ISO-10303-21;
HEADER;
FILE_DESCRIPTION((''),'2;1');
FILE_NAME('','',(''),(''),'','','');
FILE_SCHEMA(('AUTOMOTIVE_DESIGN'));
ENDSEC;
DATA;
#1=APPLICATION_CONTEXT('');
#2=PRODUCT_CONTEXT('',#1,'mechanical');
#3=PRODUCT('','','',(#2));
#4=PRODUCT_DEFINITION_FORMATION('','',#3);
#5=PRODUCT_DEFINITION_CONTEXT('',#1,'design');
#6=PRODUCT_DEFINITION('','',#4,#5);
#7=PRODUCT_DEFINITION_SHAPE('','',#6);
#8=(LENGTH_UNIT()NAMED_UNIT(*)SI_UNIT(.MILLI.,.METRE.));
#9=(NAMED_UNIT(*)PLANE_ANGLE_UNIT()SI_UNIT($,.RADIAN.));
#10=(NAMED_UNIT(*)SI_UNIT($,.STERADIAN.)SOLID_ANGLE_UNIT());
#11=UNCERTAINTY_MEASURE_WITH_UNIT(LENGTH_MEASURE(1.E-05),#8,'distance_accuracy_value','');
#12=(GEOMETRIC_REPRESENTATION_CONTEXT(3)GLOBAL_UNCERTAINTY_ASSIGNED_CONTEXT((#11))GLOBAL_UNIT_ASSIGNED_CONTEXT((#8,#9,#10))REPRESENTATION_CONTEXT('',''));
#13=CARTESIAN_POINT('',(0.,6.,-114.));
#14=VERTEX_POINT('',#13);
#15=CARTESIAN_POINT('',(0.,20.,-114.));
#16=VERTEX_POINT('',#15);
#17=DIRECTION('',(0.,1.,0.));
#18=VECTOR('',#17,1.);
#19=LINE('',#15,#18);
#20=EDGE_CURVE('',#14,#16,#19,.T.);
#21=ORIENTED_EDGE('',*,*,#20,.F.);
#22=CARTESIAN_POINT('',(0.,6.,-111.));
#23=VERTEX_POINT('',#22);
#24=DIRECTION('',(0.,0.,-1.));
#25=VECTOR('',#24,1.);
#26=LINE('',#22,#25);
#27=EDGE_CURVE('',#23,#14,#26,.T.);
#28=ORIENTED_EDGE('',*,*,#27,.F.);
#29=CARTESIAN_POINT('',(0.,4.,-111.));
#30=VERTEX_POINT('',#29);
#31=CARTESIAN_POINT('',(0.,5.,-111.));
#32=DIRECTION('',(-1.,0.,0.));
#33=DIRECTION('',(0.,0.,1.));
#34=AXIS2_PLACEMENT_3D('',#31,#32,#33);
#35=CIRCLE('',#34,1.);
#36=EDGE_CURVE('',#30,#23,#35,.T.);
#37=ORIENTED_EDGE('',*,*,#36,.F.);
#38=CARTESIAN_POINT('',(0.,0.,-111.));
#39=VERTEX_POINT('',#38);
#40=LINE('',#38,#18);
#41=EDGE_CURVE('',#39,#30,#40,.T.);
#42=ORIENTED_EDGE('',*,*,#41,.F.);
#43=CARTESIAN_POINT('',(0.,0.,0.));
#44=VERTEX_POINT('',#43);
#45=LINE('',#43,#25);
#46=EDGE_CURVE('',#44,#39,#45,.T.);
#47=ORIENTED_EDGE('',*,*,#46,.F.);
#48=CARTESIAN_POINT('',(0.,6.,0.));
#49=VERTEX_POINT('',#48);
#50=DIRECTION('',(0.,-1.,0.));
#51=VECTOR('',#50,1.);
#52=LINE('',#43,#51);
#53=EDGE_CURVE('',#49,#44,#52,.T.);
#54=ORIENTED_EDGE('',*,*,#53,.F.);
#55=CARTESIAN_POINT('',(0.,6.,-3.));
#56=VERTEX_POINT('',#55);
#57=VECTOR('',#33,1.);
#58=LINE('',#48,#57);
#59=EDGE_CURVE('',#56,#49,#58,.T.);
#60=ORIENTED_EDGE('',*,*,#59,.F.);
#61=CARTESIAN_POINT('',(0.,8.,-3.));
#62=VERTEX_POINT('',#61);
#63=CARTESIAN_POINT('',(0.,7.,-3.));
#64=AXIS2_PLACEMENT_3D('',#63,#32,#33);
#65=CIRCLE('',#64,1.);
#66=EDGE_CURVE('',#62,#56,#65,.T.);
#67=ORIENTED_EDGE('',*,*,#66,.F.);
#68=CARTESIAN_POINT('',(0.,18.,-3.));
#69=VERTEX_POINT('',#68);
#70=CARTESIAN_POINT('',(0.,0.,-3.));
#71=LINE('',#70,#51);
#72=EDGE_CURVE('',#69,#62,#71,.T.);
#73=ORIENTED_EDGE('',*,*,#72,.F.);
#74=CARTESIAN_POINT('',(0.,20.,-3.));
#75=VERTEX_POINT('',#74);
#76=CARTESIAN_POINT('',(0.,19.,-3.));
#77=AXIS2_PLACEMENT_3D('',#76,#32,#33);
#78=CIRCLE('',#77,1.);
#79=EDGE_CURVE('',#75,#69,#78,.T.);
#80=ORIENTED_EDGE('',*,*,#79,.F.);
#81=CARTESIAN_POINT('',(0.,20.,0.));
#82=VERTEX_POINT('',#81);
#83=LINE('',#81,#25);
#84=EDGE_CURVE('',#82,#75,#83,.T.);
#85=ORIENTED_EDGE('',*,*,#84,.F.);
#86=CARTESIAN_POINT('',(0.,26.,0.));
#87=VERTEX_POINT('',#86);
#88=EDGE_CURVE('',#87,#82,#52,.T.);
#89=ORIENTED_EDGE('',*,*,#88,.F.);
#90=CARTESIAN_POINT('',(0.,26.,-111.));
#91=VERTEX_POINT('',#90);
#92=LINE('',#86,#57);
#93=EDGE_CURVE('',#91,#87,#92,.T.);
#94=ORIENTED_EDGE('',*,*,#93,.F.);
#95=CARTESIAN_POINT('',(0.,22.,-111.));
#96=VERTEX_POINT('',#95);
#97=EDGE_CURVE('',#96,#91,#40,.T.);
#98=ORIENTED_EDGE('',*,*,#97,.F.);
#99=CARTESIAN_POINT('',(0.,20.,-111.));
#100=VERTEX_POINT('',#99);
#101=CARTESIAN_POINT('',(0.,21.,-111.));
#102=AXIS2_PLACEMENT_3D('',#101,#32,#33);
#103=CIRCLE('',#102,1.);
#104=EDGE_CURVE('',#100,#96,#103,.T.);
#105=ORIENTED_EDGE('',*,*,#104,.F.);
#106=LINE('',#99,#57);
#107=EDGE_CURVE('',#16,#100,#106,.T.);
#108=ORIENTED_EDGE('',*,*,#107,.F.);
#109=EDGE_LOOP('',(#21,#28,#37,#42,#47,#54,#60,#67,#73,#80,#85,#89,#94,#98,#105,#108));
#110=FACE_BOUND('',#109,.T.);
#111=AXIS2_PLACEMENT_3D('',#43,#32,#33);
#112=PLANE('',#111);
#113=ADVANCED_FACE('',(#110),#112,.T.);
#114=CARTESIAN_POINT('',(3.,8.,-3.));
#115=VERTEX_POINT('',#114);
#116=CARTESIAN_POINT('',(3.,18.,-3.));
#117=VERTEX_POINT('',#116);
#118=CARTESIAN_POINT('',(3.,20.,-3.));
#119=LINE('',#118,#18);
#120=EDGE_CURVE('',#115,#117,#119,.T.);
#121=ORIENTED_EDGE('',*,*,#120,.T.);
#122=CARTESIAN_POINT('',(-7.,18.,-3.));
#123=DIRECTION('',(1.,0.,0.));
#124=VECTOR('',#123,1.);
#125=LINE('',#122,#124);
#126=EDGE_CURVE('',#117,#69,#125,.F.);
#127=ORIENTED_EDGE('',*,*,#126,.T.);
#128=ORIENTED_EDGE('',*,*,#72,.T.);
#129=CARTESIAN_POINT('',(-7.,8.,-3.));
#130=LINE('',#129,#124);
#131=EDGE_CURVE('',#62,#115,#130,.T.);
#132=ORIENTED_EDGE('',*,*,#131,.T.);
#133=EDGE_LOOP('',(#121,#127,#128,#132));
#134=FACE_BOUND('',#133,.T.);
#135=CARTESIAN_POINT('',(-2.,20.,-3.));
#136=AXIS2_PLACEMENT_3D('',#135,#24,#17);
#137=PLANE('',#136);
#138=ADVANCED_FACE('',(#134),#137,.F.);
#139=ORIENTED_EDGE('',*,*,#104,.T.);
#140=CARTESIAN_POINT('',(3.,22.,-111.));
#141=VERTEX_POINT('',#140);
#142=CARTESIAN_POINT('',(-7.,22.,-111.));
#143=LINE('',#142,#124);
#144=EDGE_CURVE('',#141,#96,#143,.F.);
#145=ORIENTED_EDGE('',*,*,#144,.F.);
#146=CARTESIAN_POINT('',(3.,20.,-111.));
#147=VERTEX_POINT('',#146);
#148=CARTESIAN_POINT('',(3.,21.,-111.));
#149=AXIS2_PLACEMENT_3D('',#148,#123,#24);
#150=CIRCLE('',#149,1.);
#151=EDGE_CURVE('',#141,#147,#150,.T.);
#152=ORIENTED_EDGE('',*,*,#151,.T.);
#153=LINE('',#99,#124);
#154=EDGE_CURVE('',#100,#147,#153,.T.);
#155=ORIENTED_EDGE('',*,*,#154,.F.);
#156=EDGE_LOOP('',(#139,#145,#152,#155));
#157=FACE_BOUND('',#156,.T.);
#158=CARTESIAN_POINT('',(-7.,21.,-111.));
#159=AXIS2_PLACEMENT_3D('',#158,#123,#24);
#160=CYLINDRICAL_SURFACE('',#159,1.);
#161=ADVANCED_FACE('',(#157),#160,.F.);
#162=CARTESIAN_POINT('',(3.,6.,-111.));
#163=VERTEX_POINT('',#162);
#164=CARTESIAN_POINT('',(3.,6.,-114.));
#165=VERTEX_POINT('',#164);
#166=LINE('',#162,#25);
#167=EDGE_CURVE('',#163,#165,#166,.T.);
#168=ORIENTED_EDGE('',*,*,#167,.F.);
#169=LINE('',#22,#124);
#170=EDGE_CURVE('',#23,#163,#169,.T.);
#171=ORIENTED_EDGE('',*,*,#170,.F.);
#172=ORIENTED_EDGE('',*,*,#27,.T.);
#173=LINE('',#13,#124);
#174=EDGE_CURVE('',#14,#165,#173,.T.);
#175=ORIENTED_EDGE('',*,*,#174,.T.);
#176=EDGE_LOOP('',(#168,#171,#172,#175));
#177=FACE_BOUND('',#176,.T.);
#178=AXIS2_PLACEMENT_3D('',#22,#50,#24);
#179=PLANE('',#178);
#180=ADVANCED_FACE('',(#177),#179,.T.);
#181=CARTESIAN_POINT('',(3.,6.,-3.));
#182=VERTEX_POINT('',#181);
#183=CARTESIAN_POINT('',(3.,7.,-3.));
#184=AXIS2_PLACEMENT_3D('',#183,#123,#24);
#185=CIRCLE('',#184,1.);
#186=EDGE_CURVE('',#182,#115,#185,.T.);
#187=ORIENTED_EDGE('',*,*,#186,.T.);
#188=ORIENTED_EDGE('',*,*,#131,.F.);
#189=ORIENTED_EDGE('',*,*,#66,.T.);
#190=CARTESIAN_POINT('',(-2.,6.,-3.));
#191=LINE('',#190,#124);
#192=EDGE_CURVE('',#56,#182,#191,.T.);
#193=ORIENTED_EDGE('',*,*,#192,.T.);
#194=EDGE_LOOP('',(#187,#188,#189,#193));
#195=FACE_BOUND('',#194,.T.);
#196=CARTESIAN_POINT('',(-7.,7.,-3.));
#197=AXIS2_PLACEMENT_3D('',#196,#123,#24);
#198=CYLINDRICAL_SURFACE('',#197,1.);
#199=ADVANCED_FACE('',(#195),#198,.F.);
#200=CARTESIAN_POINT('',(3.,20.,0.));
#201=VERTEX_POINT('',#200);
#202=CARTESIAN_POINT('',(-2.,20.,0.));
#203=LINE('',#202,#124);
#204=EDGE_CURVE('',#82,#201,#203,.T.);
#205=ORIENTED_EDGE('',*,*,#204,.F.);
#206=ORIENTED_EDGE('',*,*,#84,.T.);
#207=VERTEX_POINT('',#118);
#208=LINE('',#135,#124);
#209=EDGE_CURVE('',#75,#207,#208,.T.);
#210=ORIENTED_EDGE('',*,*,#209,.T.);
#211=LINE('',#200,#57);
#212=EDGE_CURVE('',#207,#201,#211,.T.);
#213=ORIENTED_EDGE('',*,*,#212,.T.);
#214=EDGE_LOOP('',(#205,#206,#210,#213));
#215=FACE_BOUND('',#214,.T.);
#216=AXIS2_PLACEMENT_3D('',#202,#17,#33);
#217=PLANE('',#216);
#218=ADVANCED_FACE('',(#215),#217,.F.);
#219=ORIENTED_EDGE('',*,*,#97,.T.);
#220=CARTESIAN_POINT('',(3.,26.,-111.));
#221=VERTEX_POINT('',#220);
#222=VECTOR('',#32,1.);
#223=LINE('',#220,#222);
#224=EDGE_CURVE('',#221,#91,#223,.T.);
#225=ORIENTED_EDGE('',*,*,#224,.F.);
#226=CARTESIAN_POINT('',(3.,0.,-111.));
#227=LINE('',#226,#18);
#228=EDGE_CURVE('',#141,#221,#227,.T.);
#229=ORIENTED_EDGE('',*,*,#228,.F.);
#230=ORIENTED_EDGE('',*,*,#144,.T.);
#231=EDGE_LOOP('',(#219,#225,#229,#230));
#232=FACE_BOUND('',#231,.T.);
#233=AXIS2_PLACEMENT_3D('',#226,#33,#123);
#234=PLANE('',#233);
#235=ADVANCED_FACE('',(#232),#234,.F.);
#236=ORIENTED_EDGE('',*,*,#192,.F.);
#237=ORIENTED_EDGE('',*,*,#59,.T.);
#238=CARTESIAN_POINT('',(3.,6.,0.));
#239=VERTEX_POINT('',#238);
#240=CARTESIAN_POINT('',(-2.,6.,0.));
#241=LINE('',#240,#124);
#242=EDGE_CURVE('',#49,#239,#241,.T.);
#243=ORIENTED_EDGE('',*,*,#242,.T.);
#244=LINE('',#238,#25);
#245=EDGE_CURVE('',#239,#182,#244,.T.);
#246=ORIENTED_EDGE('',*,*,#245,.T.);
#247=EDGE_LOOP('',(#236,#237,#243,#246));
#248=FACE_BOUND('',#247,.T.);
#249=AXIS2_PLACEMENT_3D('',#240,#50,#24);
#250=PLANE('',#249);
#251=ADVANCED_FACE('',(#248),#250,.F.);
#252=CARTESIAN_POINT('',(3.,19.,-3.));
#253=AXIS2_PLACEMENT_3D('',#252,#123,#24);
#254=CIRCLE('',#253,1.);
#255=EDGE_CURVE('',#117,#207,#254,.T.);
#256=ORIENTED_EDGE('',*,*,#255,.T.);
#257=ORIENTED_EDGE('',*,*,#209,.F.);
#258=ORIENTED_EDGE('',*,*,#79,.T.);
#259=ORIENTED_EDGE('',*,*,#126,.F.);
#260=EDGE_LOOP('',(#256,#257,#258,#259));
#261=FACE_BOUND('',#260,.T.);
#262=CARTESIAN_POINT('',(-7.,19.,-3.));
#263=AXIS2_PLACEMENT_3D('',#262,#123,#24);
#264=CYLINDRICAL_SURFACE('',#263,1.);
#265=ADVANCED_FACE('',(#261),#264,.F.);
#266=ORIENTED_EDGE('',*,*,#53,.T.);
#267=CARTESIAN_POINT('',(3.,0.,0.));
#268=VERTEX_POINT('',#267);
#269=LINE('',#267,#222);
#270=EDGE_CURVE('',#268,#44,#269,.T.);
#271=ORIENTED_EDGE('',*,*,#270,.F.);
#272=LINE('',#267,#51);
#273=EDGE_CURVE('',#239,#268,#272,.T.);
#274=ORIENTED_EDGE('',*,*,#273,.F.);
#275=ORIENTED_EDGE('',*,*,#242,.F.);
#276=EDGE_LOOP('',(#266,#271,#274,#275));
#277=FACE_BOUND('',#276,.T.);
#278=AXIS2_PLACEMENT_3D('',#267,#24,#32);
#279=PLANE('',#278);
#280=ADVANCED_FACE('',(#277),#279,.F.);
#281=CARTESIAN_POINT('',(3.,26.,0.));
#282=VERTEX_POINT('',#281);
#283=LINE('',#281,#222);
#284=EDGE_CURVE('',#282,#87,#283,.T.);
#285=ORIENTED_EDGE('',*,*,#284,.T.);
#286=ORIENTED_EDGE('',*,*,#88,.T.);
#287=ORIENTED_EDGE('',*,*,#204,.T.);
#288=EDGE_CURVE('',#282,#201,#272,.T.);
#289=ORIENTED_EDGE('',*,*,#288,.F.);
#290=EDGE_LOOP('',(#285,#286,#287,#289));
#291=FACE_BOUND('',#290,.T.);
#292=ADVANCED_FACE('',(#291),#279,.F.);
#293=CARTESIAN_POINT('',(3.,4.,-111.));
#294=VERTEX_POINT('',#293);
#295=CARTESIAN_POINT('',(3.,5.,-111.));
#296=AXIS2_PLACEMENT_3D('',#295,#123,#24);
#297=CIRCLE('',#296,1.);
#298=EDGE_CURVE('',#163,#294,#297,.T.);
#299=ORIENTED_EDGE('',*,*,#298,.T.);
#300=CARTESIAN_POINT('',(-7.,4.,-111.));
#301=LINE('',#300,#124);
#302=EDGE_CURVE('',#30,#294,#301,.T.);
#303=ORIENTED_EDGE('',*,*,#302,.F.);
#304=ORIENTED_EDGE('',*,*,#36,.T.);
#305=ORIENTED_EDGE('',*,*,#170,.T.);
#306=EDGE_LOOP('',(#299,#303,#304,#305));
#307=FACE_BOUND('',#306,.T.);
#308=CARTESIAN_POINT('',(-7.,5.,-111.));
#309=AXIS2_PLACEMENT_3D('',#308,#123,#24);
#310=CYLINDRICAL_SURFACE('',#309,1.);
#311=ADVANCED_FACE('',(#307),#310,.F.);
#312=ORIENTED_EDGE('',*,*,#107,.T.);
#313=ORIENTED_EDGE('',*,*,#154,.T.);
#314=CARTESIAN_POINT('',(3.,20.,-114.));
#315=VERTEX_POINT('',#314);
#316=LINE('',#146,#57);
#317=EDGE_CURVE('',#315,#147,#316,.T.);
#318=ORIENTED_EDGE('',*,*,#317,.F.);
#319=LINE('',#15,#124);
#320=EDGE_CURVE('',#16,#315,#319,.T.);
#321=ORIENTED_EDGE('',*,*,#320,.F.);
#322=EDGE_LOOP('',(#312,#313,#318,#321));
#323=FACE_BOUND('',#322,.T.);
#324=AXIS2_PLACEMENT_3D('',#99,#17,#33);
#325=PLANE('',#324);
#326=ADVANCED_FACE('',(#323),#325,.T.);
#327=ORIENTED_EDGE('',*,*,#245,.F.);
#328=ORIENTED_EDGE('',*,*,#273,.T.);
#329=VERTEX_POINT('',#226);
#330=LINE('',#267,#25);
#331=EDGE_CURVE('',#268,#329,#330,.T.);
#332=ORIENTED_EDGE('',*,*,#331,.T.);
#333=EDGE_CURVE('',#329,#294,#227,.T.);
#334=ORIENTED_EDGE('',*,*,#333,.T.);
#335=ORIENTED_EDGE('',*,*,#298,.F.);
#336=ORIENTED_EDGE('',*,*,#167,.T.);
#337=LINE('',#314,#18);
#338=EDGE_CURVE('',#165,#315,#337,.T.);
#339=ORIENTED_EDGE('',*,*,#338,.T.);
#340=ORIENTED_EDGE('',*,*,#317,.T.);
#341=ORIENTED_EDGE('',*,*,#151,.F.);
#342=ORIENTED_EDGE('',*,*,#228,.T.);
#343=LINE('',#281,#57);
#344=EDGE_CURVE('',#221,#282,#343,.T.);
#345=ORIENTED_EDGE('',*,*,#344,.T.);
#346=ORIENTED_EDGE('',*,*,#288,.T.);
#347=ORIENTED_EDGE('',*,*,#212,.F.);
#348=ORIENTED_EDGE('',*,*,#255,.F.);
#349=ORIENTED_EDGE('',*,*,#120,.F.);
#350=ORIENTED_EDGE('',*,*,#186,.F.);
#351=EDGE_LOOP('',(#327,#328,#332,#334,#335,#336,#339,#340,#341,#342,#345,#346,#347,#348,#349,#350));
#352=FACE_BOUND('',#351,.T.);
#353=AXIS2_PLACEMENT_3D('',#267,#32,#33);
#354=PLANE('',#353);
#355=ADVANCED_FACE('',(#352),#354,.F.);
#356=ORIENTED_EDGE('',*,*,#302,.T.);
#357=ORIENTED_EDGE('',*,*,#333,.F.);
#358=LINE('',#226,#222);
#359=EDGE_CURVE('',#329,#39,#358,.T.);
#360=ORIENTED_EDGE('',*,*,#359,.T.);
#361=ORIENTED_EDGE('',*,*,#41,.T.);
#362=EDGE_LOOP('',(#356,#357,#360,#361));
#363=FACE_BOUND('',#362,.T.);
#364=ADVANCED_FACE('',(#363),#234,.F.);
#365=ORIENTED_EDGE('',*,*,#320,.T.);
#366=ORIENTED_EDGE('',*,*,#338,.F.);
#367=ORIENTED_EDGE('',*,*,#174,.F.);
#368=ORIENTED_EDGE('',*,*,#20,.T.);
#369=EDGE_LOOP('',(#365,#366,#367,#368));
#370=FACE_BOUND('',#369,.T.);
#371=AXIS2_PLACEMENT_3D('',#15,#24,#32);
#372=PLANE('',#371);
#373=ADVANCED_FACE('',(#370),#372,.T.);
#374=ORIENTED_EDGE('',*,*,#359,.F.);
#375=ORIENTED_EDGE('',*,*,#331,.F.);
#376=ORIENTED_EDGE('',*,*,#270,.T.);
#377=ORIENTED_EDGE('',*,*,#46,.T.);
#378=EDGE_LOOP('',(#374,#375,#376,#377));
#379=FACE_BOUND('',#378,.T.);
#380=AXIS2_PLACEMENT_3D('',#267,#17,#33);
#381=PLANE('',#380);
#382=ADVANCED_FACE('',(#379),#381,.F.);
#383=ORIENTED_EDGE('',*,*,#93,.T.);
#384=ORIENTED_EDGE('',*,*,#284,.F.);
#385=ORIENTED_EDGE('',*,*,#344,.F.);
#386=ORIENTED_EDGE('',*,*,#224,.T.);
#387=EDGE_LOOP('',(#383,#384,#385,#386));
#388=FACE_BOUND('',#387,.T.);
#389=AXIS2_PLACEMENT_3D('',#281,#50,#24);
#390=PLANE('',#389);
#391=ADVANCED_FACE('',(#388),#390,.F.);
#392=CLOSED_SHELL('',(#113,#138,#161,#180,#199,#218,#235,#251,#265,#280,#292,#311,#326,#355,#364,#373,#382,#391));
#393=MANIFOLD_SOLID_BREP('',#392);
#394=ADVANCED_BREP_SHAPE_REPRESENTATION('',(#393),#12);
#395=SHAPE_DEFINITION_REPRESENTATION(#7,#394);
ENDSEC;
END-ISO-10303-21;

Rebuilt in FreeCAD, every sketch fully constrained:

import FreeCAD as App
import Part
import Sketcher
Q = App.Units.Quantity

doc = App.newDocument("Part")
body = doc.addObject("PartDesign::Body", "Body")

sketch1 = doc.addObject("Sketcher::SketchObject", "Sketch")
body.addObject(sketch1)
sketch1.AttachmentSupport = (doc.YZ_Plane, [""])
sketch1.MapMode = "FlatFace"
sketch1.addGeometry([
    Part.LineSegment(App.Vector(26, 0, 0), App.Vector(0, 0, 0)),
    Part.LineSegment(App.Vector(0, 0, 0), App.Vector(0, -111, 0)),
    Part.LineSegment(App.Vector(0, -111, 0), App.Vector(26, -111, 0)),
    Part.LineSegment(App.Vector(26, -111, 0), App.Vector(26, 0, 0)),
], False)
sketch1.addConstraint([
    Sketcher.Constraint("Coincident", 0, 2, 1, 1),
    Sketcher.Constraint("Coincident", 1, 2, 2, 1),
    Sketcher.Constraint("Coincident", 2, 2, 3, 1),
    Sketcher.Constraint("Coincident", 3, 2, 0, 1),
    Sketcher.Constraint("Horizontal", 0),
    Sketcher.Constraint("Vertical", 1),
    Sketcher.Constraint("Horizontal", 2),
    Sketcher.Constraint("Vertical", 3),
    Sketcher.Constraint("Coincident", 0, 2, -1, 1),
    Sketcher.Constraint("DistanceX", 0, 2, 0, 1, Q("26 mm")),
    Sketcher.Constraint("DistanceY", 1, 2, 1, 1, Q("111 mm")),
])
pad1 = doc.addObject("PartDesign::Pad", "Pad")
body.addObject(pad1)
pad1.Profile = sketch1
pad1.Length = 3

sketch2 = doc.addObject("Sketcher::SketchObject", "Sketch001")
body.addObject(sketch2)
sketch2.AttachmentSupport = (doc.YZ_Plane, [""])
sketch2.MapMode = "FlatFace"
sketch2.AttachmentOffset = App.Placement(App.Vector(0, 0, 3), App.Rotation())
sketch2.addGeometry([
    Part.LineSegment(App.Vector(20, -111, 0), App.Vector(6, -111, 0)),
    Part.LineSegment(App.Vector(6, -111, 0), App.Vector(6, -114, 0)),
    Part.LineSegment(App.Vector(6, -114, 0), App.Vector(20, -114, 0)),
    Part.LineSegment(App.Vector(20, -114, 0), App.Vector(20, -111, 0)),
], False)
sketch2.addConstraint([
    Sketcher.Constraint("Coincident", 0, 2, 1, 1),
    Sketcher.Constraint("Coincident", 1, 2, 2, 1),
    Sketcher.Constraint("Coincident", 2, 2, 3, 1),
    Sketcher.Constraint("Coincident", 3, 2, 0, 1),
    Sketcher.Constraint("Horizontal", 0),
    Sketcher.Constraint("Vertical", 1),
    Sketcher.Constraint("Horizontal", 2),
    Sketcher.Constraint("Vertical", 3),
    Sketcher.Constraint("DistanceX", 0, 2, 0, 1, Q("14 mm")),
    Sketcher.Constraint("DistanceY", 1, 2, 1, 1, Q("3 mm")),
    Sketcher.Constraint("DistanceX", -1, 1, 0, 2, Q("6 mm")),
    Sketcher.Constraint("DistanceY", 0, 2, -1, 1, Q("111 mm")),
])
pad2 = doc.addObject("PartDesign::Pad", "Pad001")
body.addObject(pad2)
pad2.Profile = sketch2
pad2.Length = 3
pad2.Reversed = True

sketch3 = doc.addObject("Sketcher::SketchObject", "Sketch002")
body.addObject(sketch3)
sketch3.AttachmentSupport = (doc.YZ_Plane, [""])
sketch3.MapMode = "FlatFace"
sketch3.AttachmentOffset = App.Placement(App.Vector(0, 0, 3), App.Rotation())
sketch3.addGeometry([
    Part.LineSegment(App.Vector(20, 0, 0), App.Vector(6, 0, 0)),
    Part.LineSegment(App.Vector(6, 0, 0), App.Vector(6, -3, 0)),
    Part.LineSegment(App.Vector(6, -3, 0), App.Vector(20, -3, 0)),
    Part.LineSegment(App.Vector(20, -3, 0), App.Vector(20, 0, 0)),
], False)
sketch3.addConstraint([
    Sketcher.Constraint("Coincident", 0, 2, 1, 1),
    Sketcher.Constraint("Coincident", 1, 2, 2, 1),
    Sketcher.Constraint("Coincident", 2, 2, 3, 1),
    Sketcher.Constraint("Coincident", 3, 2, 0, 1),
    Sketcher.Constraint("Horizontal", 0),
    Sketcher.Constraint("Vertical", 1),
    Sketcher.Constraint("Horizontal", 2),
    Sketcher.Constraint("Vertical", 3),
    Sketcher.Constraint("PointOnObject", 0, 2, -1),
    Sketcher.Constraint("DistanceX", 0, 2, 0, 1, Q("14 mm")),
    Sketcher.Constraint("DistanceY", 1, 2, 1, 1, Q("3 mm")),
    Sketcher.Constraint("DistanceX", -1, 1, 0, 2, Q("6 mm")),
])
pocket1 = doc.addObject("PartDesign::Pocket", "Pocket")
body.addObject(pocket1)
pocket1.Profile = sketch3
pocket1.Length = 5

sketch4 = doc.addObject("Sketcher::SketchObject", "Sketch003")
body.addObject(sketch4)
sketch4.AttachmentSupport = (doc.YZ_Plane, [""])
sketch4.MapMode = "FlatFace"
sketch4.AttachmentOffset = App.Placement(App.Vector(0, 0, 3), App.Rotation())
sketch4.addGeometry([
    Part.Circle(App.Vector(21, -111, 0), App.Vector(0, 0, 1), 1),
    Part.Circle(App.Vector(5, -111, 0), App.Vector(0, 0, 1), 1),
    Part.Circle(App.Vector(19, -3, 0), App.Vector(0, 0, 1), 1),
    Part.Circle(App.Vector(7, -3, 0), App.Vector(0, 0, 1), 1),
], False)
sketch4.addConstraint([
    Sketcher.Constraint("Equal", 0, 1),
    Sketcher.Constraint("Equal", 1, 2),
    Sketcher.Constraint("Equal", 2, 3),
    Sketcher.Constraint("Horizontal", 0, 3, 1, 3),
    Sketcher.Constraint("Horizontal", 2, 3, 3, 3),
    Sketcher.Constraint("Diameter", 0, Q("2 mm")),
    Sketcher.Constraint("DistanceX", -1, 1, 0, 3, Q("21 mm")),
    Sketcher.Constraint("DistanceY", 0, 3, -1, 1, Q("111 mm")),
    Sketcher.Constraint("DistanceX", -1, 1, 1, 3, Q("5 mm")),
    Sketcher.Constraint("DistanceX", -1, 1, 2, 3, Q("19 mm")),
    Sketcher.Constraint("DistanceY", 2, 3, -1, 1, Q("3 mm")),
    Sketcher.Constraint("DistanceX", -1, 1, 3, 3, Q("7 mm")),
])
pocket2 = doc.addObject("PartDesign::Pocket", "Pocket001")
body.addObject(pocket2)
pocket2.Profile = sketch4
pocket2.Length = 10

doc.recompute()
